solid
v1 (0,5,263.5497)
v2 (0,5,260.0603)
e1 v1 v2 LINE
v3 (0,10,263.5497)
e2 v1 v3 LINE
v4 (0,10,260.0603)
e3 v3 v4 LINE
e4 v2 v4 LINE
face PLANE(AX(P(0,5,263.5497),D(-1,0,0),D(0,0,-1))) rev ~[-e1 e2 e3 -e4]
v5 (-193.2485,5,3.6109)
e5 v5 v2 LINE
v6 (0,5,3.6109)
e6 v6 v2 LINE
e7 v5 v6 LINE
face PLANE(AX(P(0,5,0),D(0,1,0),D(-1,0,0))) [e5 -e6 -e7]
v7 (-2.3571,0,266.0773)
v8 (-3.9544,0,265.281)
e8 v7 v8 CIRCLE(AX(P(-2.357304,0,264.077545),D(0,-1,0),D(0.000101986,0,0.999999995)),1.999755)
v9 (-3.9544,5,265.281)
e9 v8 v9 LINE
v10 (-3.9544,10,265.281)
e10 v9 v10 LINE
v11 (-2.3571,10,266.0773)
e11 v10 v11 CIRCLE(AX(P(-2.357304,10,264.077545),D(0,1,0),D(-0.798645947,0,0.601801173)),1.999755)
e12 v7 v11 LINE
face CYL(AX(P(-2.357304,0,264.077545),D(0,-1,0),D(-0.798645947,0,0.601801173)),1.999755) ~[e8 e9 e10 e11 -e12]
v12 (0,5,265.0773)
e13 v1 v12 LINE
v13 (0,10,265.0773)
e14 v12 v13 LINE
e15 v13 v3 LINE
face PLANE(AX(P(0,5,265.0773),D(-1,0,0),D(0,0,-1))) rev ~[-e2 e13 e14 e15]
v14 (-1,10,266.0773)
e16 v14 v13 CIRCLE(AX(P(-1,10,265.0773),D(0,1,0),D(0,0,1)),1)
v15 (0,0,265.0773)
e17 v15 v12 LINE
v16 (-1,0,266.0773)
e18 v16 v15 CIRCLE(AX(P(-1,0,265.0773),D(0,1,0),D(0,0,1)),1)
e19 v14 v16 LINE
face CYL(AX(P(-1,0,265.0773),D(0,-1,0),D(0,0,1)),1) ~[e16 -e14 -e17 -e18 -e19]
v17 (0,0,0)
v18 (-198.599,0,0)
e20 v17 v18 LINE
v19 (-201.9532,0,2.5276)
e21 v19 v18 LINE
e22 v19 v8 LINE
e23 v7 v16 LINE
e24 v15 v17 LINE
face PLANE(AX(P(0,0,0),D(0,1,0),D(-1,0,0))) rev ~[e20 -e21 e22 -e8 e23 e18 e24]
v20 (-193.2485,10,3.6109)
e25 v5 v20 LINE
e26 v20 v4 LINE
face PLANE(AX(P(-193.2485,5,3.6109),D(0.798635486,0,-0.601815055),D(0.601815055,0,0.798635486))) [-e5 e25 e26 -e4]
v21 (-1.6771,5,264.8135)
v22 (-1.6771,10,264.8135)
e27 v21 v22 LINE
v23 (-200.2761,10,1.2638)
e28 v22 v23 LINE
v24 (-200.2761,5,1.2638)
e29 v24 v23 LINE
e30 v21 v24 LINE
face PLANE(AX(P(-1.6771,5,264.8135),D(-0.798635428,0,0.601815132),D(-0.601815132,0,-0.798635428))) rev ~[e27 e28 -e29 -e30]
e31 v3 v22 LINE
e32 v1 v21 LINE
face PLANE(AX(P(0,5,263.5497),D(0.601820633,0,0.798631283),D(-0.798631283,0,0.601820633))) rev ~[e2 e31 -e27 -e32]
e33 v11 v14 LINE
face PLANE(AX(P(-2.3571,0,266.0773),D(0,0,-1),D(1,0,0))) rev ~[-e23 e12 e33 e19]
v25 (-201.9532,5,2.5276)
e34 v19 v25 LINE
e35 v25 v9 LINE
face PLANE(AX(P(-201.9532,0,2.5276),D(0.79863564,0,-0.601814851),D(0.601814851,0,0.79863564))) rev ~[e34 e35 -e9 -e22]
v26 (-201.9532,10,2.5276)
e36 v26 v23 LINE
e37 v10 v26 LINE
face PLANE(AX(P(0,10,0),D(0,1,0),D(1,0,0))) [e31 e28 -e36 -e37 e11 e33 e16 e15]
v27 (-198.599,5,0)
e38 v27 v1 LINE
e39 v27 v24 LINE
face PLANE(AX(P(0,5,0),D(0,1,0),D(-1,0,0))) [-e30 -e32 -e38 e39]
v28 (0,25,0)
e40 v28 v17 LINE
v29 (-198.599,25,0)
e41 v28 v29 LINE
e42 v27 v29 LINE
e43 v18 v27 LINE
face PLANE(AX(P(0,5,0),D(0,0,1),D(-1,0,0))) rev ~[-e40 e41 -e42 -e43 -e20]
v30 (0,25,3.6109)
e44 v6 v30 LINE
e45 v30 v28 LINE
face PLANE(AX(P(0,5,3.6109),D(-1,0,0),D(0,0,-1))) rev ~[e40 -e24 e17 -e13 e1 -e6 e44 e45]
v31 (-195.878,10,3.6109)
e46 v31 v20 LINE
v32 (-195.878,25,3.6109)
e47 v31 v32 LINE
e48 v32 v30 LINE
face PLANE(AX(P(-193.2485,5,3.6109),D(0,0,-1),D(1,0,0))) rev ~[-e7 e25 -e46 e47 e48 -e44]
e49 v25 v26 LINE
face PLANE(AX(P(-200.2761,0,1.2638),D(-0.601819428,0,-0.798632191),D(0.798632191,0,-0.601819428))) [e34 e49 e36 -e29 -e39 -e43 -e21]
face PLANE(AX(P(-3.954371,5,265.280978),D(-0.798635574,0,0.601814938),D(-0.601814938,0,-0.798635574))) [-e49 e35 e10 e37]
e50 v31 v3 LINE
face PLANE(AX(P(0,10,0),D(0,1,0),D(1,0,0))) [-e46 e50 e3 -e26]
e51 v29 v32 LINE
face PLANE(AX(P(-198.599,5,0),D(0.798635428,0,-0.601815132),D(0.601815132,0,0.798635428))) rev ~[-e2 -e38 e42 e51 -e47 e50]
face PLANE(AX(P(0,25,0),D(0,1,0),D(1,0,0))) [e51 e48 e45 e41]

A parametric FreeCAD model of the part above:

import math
import FreeCAD as App
import Part
import Sketcher
Q = App.Units.Quantity

doc = App.newDocument("Part")
body = doc.addObject("PartDesign::Body", "Body")

sketch1 = body.newObject("Sketcher::SketchObject", "Sketch")
sketch1.AttachmentSupport = (doc.getObject("XZ_Plane"), [""])
sketch1.MapMode = "FlatFace"
sketch1.addGeometry([
    Part.LineSegment(App.Vector(0, 0, 0), App.Vector(-198.599, 0, 0)),
    Part.LineSegment(App.Vector(-198.599, 0, 0), App.Vector(-201.9532, 2.5276, 0)),
    Part.LineSegment(App.Vector(-201.9532, 2.5276, 0), App.Vector(-3.9544, 265.281, 0)),
    Part.ArcOfCircle(Part.Circle(App.Vector(-2.3571, 264.0773, 0), App.Vector(0, 0, 1), 2.000065), math.radians(90), math.radians(142.998899)),
    Part.LineSegment(App.Vector(-2.3571, 266.0773, 0), App.Vector(-1, 266.0773, 0)),
    Part.ArcOfCircle(Part.Circle(App.Vector(-1, 265.0773, 0), App.Vector(0, 0, 1), 1), math.radians(0), math.radians(90)),
    Part.LineSegment(App.Vector(0, 265.0773, 0), App.Vector(0, 0, 0)),
], False)
sketch1.addConstraint([
    Sketcher.Constraint("Coincident", 0, 2, 1, 1),
    Sketcher.Constraint("Coincident", 1, 2, 2, 1),
    Sketcher.Constraint("Coincident", 2, 2, 3, 2),
    Sketcher.Constraint("Coincident", 3, 1, 4, 1),
    Sketcher.Constraint("Coincident", 4, 2, 5, 2),
    Sketcher.Constraint("Coincident", 5, 1, 6, 1),
    Sketcher.Constraint("Coincident", 6, 2, 0, 1),
    Sketcher.Constraint("Horizontal", 0),
    Sketcher.Constraint("Horizontal", 4),
    Sketcher.Constraint("Vertical", 6),
    Sketcher.Constraint("Coincident", 6, 2, -1, 1),
    Sketcher.Constraint("Radius", 3, Q("2 mm")),
    Sketcher.Constraint("Radius", 5, Q("1 mm")),
    Sketcher.Constraint("DistanceX", 4, 2, -1, 1, Q("1 mm")),
    Sketcher.Constraint("DistanceY", 5, 1, 4, 2, Q("1 mm")),
    Sketcher.Constraint("Distance", 1, Q("4.2 mm")),
    Sketcher.Constraint("DistanceX", 0, 2, 0, 1, Q("198.599 mm")),
    Sketcher.Constraint("DistanceX", 4, 1, 4, 2, Q("1.357 mm")),
    Sketcher.Constraint("DistanceY", 6, 2, 6, 1, Q("265.0773 mm")),
    Sketcher.Constraint("DistanceX", 3, 3, -1, 1, Q("2.357 mm")),
    Sketcher.Constraint("DistanceY", -1, 1, 2, 2, Q("265.281 mm")),
    Sketcher.Constraint("DistanceX", 1, 2, 3, 3, Q("199.596 mm")),
])
pad1 = body.newObject("PartDesign::Pad", "Pad")
pad1.Profile = sketch1
pad1.Length = 5
pad1.Reversed = True

sketch2 = body.newObject("Sketcher::SketchObject", "Sketch001")
sketch2.AttachmentSupport = (doc.getObject("XZ_Plane"), [""])
sketch2.MapMode = "FlatFace"
sketch2.AttachmentOffset = App.Placement(App.Vector(0, 0, -5), App.Rotation())
sketch2.addGeometry([
    Part.LineSegment(App.Vector(-193.2485, 3.6109, 0), App.Vector(-195.878, 3.6109, 0)),
    Part.LineSegment(App.Vector(-195.877994, 3.610896, 0), App.Vector(0, 263.5497, 0)),
    Part.LineSegment(App.Vector(0, 263.5497, 0), App.Vector(0, 260.0603, 0)),
    Part.LineSegment(App.Vector(0, 260.0603, 0), App.Vector(-193.2485, 3.6109, 0)),
    Part.LineSegment(App.Vector(-1.6771, 264.8135, 0), App.Vector(-200.2761, 1.2638, 0)),
    Part.LineSegment(App.Vector(-200.2761, 1.2638, 0), App.Vector(-201.9532, 2.5276, 0)),
    Part.LineSegment(App.Vector(-201.9532, 2.5276, 0), App.Vector(-3.954371, 265.280978, 0)),
    Part.ArcOfCircle(Part.Circle(App.Vector(-2.3571, 264.0773, 0), App.Vector(0, 0, 1), 2.000065), math.radians(90), math.radians(142.998899)),
    Part.LineSegment(App.Vector(-2.3571, 266.0773, 0), App.Vector(-1, 266.0773, 0)),
    Part.ArcOfCircle(Part.Circle(App.Vector(-1, 265.0773, 0), App.Vector(0, 0, 1), 1), math.radians(0), math.radians(90)),
    Part.LineSegment(App.Vector(0, 265.0773, 0), App.Vector(0, 263.5497, 0)),
    Part.LineSegment(App.Vector(0, 263.5497, 0), App.Vector(-1.677098, 264.813503, 0)),
], False)
sketch2.addConstraint([
    Sketcher.Constraint("Coincident", 0, 2, 1, 1),
    Sketcher.Constraint("Coincident", 1, 2, 2, 1),
    Sketcher.Constraint("Coincident", 2, 2, 3, 1),
    Sketcher.Constraint("Coincident", 3, 2, 0, 1),
    Sketcher.Constraint("Coincident", 4, 2, 5, 1),
    Sketcher.Constraint("Coincident", 5, 2, 6, 1),
    Sketcher.Constraint("Tangent", 6, 2, 7, 2),
    Sketcher.Constraint("Tangent", 7, 1, 8, 1),
    Sketcher.Constraint("Tangent", 8, 2, 9, 2),
    Sketcher.Constraint("Tangent", 9, 1, 10, 1),
    Sketcher.Constraint("Coincident", 10, 2, 11, 1),
    Sketcher.Constraint("Coincident", 11, 2, 4, 1),
    Sketcher.Constraint("Horizontal", 0),
    Sketcher.Constraint("Vertical", 2),
    Sketcher.Constraint("Horizontal", 8),
    Sketcher.Constraint("Vertical", 10),
    Sketcher.Constraint("Coincident", 10, 2, 1, 2),
    Sketcher.Constraint("PointOnObject", 1, 2, -2),
    Sketcher.Constraint("Parallel", 1, 3),
    Sketcher.Constraint("Parallel", 3, 4),
    Sketcher.Constraint("Perpendicular", 4, 5),
    Sketcher.Constraint("Perpendicular", 5, 6),
    Sketcher.Constraint("Perpendicular", 6, 11),
    Sketcher.Constraint("Equal", 5, 11),
    Sketcher.Constraint("Radius", 7, Q("2 mm")),
    Sketcher.Constraint("Radius", 9, Q("1 mm")),
    Sketcher.Constraint("Distance", 5, Q("2.1 mm")),
    Sketcher.Constraint("Angle", 1, Q("53 deg")),
    Sketcher.Constraint("Distance", 4, Q("330 mm")),
    Sketcher.Constraint("DistanceX", 8, 1, 8, 2, Q("1.357 mm")),
    Sketcher.Constraint("DistanceY", 3, 2, 6, 2, Q("261.67 mm")),
    Sketcher.Constraint("DistanceX", 0, 2, 0, 1, Q("2.6295 mm")),
    Sketcher.Constraint("DistanceY", -1, 1, 0, 2, Q("3.611 mm")),
])
pad2 = body.newObject("PartDesign::Pad", "Pad001")
pad2.Profile = sketch2
pad2.Length = 5
pad2.Reversed = True

sketch3 = body.newObject("Sketcher::SketchObject", "Sketch002")
sketch3.AttachmentSupport = (doc.getObject("XZ_Plane"), [""])
sketch3.MapMode = "FlatFace"
sketch3.AttachmentOffset = App.Placement(App.Vector(0, 0, -5), App.Rotation())
sketch3.addGeometry([
    Part.LineSegment(App.Vector(0, 0, 0), App.Vector(-198.599, 0, 0)),
    Part.LineSegment(App.Vector(-198.599, 0, 0), App.Vector(-195.877994, 3.610896, 0)),
    Part.LineSegment(App.Vector(-195.878, 3.6109, 0), App.Vector(0, 3.6109, 0)),
    Part.LineSegment(App.Vector(0, 3.6109, 0), App.Vector(0, 0, 0)),
], False)
sketch3.addConstraint([
    Sketcher.Constraint("Coincident", 0, 2, 1, 1),
    Sketcher.Constraint("Coincident", 1, 2, 2, 1),
    Sketcher.Constraint("Coincident", 2, 2, 3, 1),
    Sketcher.Constraint("Coincident", 3, 2, 0, 1),
    Sketcher.Constraint("Horizontal", 0),
    Sketcher.Constraint("Horizontal", 2),
    Sketcher.Constraint("Vertical", 3),
    Sketcher.Constraint("Coincident", 3, 2, -1, 1),
    Sketcher.Constraint("Angle", 1, Q("53 deg")),
    Sketcher.Constraint("DistanceX", 0, 2, 0, 1, Q("198.599 mm")),
    Sketcher.Constraint("DistanceX", 2, 1, 2, 2, Q("195.878 mm")),
])
pad3 = body.newObject("PartDesign::Pad", "Pad002")
pad3.Profile = sketch3
pad3.Length = 20
pad3.Reversed = True

doc.recompute()
